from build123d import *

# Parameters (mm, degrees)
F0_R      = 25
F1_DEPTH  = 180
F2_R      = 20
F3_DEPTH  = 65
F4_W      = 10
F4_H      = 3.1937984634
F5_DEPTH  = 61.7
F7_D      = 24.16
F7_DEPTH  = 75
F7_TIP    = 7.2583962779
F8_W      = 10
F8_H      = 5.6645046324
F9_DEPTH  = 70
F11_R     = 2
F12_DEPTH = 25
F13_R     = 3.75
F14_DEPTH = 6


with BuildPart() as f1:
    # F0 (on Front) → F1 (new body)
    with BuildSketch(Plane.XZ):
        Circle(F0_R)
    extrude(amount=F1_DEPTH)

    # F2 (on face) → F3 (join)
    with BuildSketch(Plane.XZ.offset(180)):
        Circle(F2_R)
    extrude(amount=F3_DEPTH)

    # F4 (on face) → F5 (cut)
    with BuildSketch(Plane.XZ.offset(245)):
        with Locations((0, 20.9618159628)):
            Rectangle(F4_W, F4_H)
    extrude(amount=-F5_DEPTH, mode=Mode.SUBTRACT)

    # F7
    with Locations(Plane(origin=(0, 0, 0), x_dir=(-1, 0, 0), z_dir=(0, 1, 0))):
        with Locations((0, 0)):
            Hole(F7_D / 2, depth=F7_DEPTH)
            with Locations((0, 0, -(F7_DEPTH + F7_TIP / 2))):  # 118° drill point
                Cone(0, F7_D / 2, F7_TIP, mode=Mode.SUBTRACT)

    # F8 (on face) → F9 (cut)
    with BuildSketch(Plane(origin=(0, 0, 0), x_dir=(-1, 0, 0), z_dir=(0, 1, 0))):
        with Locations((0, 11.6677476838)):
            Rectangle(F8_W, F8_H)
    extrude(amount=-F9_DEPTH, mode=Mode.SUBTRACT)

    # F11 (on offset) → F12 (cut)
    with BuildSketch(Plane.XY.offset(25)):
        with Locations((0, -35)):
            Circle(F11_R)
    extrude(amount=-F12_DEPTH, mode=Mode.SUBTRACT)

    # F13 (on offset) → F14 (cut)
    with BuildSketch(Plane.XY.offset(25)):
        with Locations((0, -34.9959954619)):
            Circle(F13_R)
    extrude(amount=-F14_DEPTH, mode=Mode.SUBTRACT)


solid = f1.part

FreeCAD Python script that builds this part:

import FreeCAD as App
import Part
import Sketcher

V = App.Vector
Q = App.Units.Quantity


def add_polygon(sketch, points):
    """Adds a closed chain of lines whose ends are joined by coincident constraints."""
    first, n = sketch.GeometryCount, len(points)
    for a, b in zip(points, points[1:] + points[:1]):
        sketch.addGeometry(Part.LineSegment(App.Vector(*a, 0), App.Vector(*b, 0)), False)
    for i in range(n):
        sketch.addConstraint(Sketcher.Constraint("Coincident", first + i, 2, first + (i + 1) % n, 1))

doc = App.newDocument("Part")
body = doc.addObject("PartDesign::Body", "Body")

# Sketch on XZ plane
sketch1 = body.newObject("Sketcher::SketchObject", "Sketch")
sketch1.AttachmentSupport = (doc.getObject("XZ_Plane"), [""])
sketch1.MapMode = "FlatFace"
sketch1.addGeometry(Part.Circle(V(0, 0, 0), V(0, 0, 1), 25), False)
sketch1.addConstraint(Sketcher.Constraint("Coincident", 0, 3, -1, 1))
sketch1.addConstraint(Sketcher.Constraint("Diameter", 0, Q("50 mm")))
pad1 = body.newObject("PartDesign::Pad", "Pad")
pad1.Profile = sketch1
pad1.Length = 180

# Sketch on XZ plane
sketch2 = body.newObject("Sketcher::SketchObject", "Sketch001")
sketch2.AttachmentSupport = (doc.getObject("XZ_Plane"), [""])
sketch2.MapMode = "FlatFace"
sketch2.AttachmentOffset = App.Placement(V(0, 0, 180), App.Rotation())
sketch2.addGeometry(Part.Circle(V(0, 0, 0), V(0, 0, 1), 20), False)
sketch2.addConstraint(Sketcher.Constraint("Coincident", 0, 3, -1, 1))
sketch2.addConstraint(Sketcher.Constraint("Diameter", 0, Q("40 mm")))
pad2 = body.newObject("PartDesign::Pad", "Pad001")
pad2.Profile = sketch2
pad2.Length = 65

# Sketch on XZ plane
sketch3 = body.newObject("Sketcher::SketchObject", "Sketch002")
sketch3.AttachmentSupport = (doc.getObject("XZ_Plane"), [""])
sketch3.MapMode = "FlatFace"
sketch3.AttachmentOffset = App.Placement(V(0, 0, 245), App.Rotation())
add_polygon(sketch3, [(-5, 22.6), (-5, 19.4), (5, 19.4), (5, 22.6)])  # lines 0-3
sketch3.addConstraint(Sketcher.Constraint("Vertical", 0))
sketch3.addConstraint(Sketcher.Constraint("Horizontal", 1))
sketch3.addConstraint(Sketcher.Constraint("Vertical", 2))
sketch3.addConstraint(Sketcher.Constraint("Horizontal", 3))
sketch3.addConstraint(Sketcher.Constraint("DistanceX", 1, 1, 1, 2, Q("10 mm")))
sketch3.addConstraint(Sketcher.Constraint("DistanceX", 0, 2, -1, 1, Q("5 mm")))
sketch3.addConstraint(Sketcher.Constraint("DistanceY", 0, 2, 0, 1, Q("3.193798 mm")))
sketch3.addConstraint(Sketcher.Constraint("DistanceY", -1, 1, 0, 2, Q("19.364917 mm")))
pocket1 = body.newObject("PartDesign::Pocket", "Pocket")
pocket1.Profile = sketch3
pocket1.Length = 61.7

# Sketch on XZ plane
sketch4 = body.newObject("Sketcher::SketchObject", "Sketch003")
sketch4.AttachmentSupport = (doc.getObject("XZ_Plane"), [""])
sketch4.MapMode = "FlatFace"
sketch4.addGeometry(Part.Circle(V(0, 0, 0), V(0, 0, 1), 12), False)
sketch4.addConstraint(Sketcher.Constraint("Coincident", 0, 3, -1, 1))
sketch4.addConstraint(Sketcher.Constraint("Diameter", 0, Q("24.16 mm")))
doc.recompute()
hole = body.newObject("PartDesign::Hole", "Hole")
hole.Profile = sketch4
hole.ThreadType = "None"
hole.Diameter = 24.16
hole.DepthType = "Dimension"
hole.Depth = 75
hole.DrillPoint = "Angled"
hole.DrillPointAngle = 118
hole.Reversed = True

# Sketch on XZ plane
sketch5 = body.newObject("Sketcher::SketchObject", "Sketch004")
sketch5.AttachmentSupport = (doc.getObject("XZ_Plane"), [""])
sketch5.MapMode = "FlatFace"
add_polygon(sketch5, [(5, 14), (5, 9), (-5, 9), (-5, 14)])  # lines 0-3
sketch5.addConstraint(Sketcher.Constraint("Vertical", 0))
sketch5.addConstraint(Sketcher.Constraint("Horizontal", 1))
sketch5.addConstraint(Sketcher.Constraint("Vertical", 2))
sketch5.addConstraint(Sketcher.Constraint("Horizontal", 3))
sketch5.addConstraint(Sketcher.Constraint("DistanceX", 1, 2, 1, 1, Q("10 mm")))
sketch5.addConstraint(Sketcher.Constraint("DistanceX", -1, 1, 0, 2, Q("5 mm")))
sketch5.addConstraint(Sketcher.Constraint("DistanceY", -1, 1, 2, 2, Q("14.5 mm")))
sketch5.addConstraint(Sketcher.Constraint("DistanceY", 0, 2, 0, 1, Q("5.664505 mm")))
pocket2 = body.newObject("PartDesign::Pocket", "Pocket001")
pocket2.Profile = sketch5
pocket2.Length = 70
pocket2.Reversed = True

# Sketch on XY plane
sketch6 = body.newObject("Sketcher::SketchObject", "Sketch005")
sketch6.AttachmentSupport = (doc.getObject("XY_Plane"), [""])
sketch6.MapMode = "FlatFace"
sketch6.AttachmentOffset = App.Placement(V(0, 0, 25), App.Rotation())
sketch6.addGeometry(Part.Circle(V(0, -35, 0), V(0, 0, 1), 2), False)
sketch6.addConstraint(Sketcher.Constraint("PointOnObject", 0, 3, -2))
sketch6.addConstraint(Sketcher.Constraint("Diameter", 0, Q("4 mm")))
sketch6.addConstraint(Sketcher.Constraint("DistanceY", 0, 3, -1, 1, Q("35 mm")))
pocket3 = body.newObject("PartDesign::Pocket", "Pocket002")
pocket3.Profile = sketch6
pocket3.Length = 25

# Sketch on XY plane
sketch7 = body.newObject("Sketcher::SketchObject", "Sketch006")
sketch7.AttachmentSupport = (doc.getObject("XY_Plane"), [""])
sketch7.MapMode = "FlatFace"
sketch7.AttachmentOffset = App.Placement(V(0, 0, 25), App.Rotation())
sketch7.addGeometry(Part.Circle(V(0, -35, 0), V(0, 0, 1), 3.8), False)
sketch7.addConstraint(Sketcher.Constraint("PointOnObject", 0, 3, -2))
sketch7.addConstraint(Sketcher.Constraint("Diameter", 0, Q("7.5 mm")))
sketch7.addConstraint(Sketcher.Constraint("DistanceY", 0, 3, -1, 1, Q("34.995995 mm")))
pocket4 = body.newObject("PartDesign::Pocket", "Pocket003")
pocket4.Profile = sketch7
pocket4.Length = 6

doc.recompute()
